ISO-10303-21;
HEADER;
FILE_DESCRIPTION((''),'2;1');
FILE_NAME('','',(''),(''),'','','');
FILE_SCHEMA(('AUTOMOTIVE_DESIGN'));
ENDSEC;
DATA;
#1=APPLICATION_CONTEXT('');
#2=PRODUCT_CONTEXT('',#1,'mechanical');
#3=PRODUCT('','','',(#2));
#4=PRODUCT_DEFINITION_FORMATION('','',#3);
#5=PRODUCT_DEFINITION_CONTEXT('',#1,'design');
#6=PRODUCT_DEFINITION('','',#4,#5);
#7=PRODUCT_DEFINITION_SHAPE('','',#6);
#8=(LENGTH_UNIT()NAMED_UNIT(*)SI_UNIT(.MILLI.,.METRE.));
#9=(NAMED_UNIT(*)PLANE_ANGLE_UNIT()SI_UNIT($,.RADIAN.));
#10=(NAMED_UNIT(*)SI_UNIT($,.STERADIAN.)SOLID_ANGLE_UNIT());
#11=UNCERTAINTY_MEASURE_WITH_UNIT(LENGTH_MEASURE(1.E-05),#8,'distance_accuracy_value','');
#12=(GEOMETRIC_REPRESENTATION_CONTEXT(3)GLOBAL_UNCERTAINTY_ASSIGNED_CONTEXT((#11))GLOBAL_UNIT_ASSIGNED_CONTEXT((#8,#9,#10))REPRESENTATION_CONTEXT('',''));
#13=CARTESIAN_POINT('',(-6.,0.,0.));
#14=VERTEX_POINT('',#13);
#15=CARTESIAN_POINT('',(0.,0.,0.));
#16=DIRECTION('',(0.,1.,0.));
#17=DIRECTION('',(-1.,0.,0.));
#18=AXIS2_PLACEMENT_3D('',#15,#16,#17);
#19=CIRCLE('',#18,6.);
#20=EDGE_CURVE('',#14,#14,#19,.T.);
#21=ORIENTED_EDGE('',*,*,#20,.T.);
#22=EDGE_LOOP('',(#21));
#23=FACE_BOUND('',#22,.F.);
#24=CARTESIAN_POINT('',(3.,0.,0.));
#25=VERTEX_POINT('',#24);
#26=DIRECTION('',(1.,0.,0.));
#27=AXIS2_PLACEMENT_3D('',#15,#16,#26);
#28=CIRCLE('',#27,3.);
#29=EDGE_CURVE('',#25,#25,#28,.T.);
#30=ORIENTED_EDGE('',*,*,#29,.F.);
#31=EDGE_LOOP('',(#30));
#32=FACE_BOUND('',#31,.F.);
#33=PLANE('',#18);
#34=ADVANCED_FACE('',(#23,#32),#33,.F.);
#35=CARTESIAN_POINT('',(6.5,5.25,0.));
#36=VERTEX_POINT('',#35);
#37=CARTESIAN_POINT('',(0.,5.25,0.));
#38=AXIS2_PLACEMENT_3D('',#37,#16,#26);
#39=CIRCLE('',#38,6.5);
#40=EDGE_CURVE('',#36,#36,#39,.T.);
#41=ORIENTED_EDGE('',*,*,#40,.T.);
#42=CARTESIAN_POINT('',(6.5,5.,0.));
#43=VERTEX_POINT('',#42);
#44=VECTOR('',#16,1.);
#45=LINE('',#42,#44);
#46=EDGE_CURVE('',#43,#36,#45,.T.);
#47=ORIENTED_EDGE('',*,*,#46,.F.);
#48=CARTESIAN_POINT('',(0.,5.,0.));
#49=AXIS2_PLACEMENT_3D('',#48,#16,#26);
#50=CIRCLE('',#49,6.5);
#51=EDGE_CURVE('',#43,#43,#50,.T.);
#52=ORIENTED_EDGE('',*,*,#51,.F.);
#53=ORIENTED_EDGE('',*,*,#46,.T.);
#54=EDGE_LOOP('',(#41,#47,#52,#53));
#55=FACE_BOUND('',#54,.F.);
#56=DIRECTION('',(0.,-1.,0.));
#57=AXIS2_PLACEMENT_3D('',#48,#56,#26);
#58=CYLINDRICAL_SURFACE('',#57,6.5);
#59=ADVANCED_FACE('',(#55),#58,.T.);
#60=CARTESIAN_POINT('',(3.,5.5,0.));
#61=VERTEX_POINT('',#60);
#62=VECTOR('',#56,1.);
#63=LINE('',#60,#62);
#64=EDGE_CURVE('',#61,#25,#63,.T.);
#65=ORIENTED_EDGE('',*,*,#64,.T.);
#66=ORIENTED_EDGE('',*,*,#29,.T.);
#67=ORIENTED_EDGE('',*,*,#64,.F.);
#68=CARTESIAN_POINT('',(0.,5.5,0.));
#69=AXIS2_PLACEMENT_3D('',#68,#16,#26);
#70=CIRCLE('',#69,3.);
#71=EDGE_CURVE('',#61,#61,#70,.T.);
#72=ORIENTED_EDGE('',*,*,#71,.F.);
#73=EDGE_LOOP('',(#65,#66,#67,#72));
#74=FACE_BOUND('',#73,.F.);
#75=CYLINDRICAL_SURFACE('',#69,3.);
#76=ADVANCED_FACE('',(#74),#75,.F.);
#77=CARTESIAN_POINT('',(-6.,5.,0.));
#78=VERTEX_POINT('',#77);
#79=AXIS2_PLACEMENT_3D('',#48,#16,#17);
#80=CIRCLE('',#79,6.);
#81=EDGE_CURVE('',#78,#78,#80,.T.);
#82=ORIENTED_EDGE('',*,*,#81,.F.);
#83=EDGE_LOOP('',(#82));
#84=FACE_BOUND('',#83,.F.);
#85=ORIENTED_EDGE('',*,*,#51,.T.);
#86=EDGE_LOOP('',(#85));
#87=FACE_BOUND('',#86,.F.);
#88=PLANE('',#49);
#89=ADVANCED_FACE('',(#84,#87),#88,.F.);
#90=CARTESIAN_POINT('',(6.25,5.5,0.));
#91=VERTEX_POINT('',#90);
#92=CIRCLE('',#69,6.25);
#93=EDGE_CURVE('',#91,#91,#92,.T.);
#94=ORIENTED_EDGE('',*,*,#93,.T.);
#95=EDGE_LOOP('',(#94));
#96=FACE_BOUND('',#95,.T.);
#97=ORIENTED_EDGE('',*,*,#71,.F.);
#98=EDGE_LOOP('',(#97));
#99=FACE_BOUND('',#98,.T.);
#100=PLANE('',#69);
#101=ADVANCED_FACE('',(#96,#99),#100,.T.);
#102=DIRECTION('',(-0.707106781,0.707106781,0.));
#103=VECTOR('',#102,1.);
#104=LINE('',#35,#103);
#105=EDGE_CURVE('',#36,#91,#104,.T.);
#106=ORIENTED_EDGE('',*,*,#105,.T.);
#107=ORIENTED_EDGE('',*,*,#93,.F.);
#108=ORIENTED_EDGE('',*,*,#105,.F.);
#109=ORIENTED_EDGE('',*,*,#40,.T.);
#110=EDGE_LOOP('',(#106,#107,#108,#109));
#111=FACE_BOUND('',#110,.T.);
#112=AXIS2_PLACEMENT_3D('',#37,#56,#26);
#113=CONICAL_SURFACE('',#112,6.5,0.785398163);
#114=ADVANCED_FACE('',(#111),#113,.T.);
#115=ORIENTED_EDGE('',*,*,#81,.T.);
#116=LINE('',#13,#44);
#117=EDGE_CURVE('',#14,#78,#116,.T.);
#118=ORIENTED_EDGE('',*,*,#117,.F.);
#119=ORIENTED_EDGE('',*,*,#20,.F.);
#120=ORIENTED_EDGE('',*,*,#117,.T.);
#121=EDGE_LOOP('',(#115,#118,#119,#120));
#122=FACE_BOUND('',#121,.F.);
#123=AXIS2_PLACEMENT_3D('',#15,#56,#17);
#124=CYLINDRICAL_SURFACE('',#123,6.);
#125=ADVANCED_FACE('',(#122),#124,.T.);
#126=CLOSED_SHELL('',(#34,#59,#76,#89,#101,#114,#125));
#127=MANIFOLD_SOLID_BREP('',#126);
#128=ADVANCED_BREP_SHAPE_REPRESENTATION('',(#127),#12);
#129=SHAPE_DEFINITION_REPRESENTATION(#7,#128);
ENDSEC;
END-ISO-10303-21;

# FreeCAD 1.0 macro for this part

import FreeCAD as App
import Part
import Sketcher
from FreeCAD import Vector
Q = App.Units.Quantity


def edges_at(feature, points):
    """Names of the edges that pass closest to the given points."""
    edges = feature.Shape.Edges
    near = lambda p: min(range(len(edges)), key=lambda i: edges[i].distToShape(Part.Vertex(*p))[0])
    return sorted({f"Edge{near(p) + 1}" for p in points})

doc = App.newDocument("Part")
params = doc.addObject("Spreadsheet::Sheet", "Params")
for row, (alias, value) in enumerate([
    ("sketch1_diameter", "12 mm"),
    ("pad1_length", "5 mm"),
    ("sketch2_diameter", "13 mm"),
    ("pad2_length", "0.5 mm"),
    ("chamfer_size", "0.25 mm"),
    ("sketch3_diameter", "6 mm"),
], start=1):
    params.set(f"A{row}", alias)
    params.set(f"B{row}", "=" + value)
    params.setAlias(f"B{row}", alias)

body = doc.addObject("PartDesign::Body", "Body")

# Sketch on XZ plane
sketch1 = body.newObject("Sketcher::SketchObject", "Sketch")
sketch1.AttachmentSupport = (doc.getObject("XZ_Plane"), [""])
sketch1.MapMode = "FlatFace"
sketch1.addGeometry(Part.Circle(Vector(0, 0, 0), Vector(0, 0, 1), 6), False)
sketch1.addConstraint([
    Sketcher.Constraint("Coincident", 0, 3, -1, 1),
    Sketcher.Constraint("Diameter", 0, Q("12 mm")),
])
sketch1.setExpression("Constraints[1]", "Params.sketch1_diameter")
pad1 = body.newObject("PartDesign::Pad", "Pad")
pad1.Profile = sketch1
pad1.setExpression("Length", "Params.pad1_length")
pad1.Reversed = True

# Sketch on XZ plane
sketch2 = body.newObject("Sketcher::SketchObject", "Sketch001")
sketch2.AttachmentSupport = (doc.getObject("XZ_Plane"), [""])
sketch2.MapMode = "FlatFace"
sketch2.AttachmentOffset = App.Placement(Vector(0, 0, -5), App.Rotation())
sketch2.addGeometry(Part.Circle(Vector(0, 0, 0), Vector(0, 0, 1), 6.5), False)
sketch2.addConstraint([
    Sketcher.Constraint("Coincident", 0, 3, -1, 1),
    Sketcher.Constraint("Diameter", 0, Q("13 mm")),
])
sketch2.setExpression("Constraints[1]", "Params.sketch2_diameter")
pad2 = body.newObject("PartDesign::Pad", "Pad001")
pad2.Profile = sketch2
pad2.setExpression("Length", "Params.pad2_length")
pad2.Reversed = True
doc.recompute()

chamfer = body.newObject("PartDesign::Chamfer", "Chamfer")
chamfer.Base = (pad2, edges_at(pad2, [(-6.5, 5.5, 0)]))
chamfer.setExpression("Size", "Params.chamfer_size")

# Sketch on XZ plane
sketch3 = body.newObject("Sketcher::SketchObject", "Sketch002")
sketch3.AttachmentSupport = (doc.getObject("XZ_Plane"), [""])
sketch3.MapMode = "FlatFace"
sketch3.AttachmentOffset = App.Placement(Vector(0, 0, -5.5), App.Rotation())
sketch3.addGeometry(Part.Circle(Vector(0, 0, 0), Vector(0, 0, 1), 3), False)
sketch3.addConstraint([
    Sketcher.Constraint("Coincident", 0, 3, -1, 1),
    Sketcher.Constraint("Diameter", 0, Q("6 mm")),
])
sketch3.setExpression("Constraints[1]", "Params.sketch3_diameter")
pocket1 = body.newObject("PartDesign::Pocket", "Pocket")
pocket1.Profile = sketch3
pocket1.Type = "ThroughAll"
pocket1.Reversed = True

doc.recompute()
